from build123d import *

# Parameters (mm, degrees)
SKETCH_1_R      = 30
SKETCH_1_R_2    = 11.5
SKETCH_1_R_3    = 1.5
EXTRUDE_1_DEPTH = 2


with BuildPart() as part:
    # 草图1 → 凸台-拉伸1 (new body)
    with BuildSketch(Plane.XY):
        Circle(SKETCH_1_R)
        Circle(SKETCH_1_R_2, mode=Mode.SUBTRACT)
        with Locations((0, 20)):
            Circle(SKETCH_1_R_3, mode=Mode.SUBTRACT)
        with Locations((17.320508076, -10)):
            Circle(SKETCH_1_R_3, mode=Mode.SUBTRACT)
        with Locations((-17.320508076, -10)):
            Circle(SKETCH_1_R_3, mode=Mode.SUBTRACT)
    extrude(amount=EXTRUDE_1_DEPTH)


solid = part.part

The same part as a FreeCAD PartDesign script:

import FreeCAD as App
import Part
import Sketcher

doc = App.newDocument("Part")
body = doc.addObject("PartDesign::Body", "Body")

# Sketch on XY plane
sketch1 = doc.addObject("Sketcher::SketchObject", "Sketch")
body.addObject(sketch1)
sketch1.AttachmentSupport = (doc.XY_Plane, [""])
sketch1.MapMode = "FlatFace"
sketch1.addGeometry([
    Part.Circle(App.Vector(0, 0, 0), App.Vector(0, 0, 1), 30),  # 0
    Part.Circle(App.Vector(-17.320508, -10, 0), App.Vector(0, 0, 1), 1.5),  # 1
    Part.Circle(App.Vector(17.320508, -10, 0), App.Vector(0, 0, 1), 1.5),  # 2
    Part.Circle(App.Vector(0, 0, 0), App.Vector(0, 0, 1), 11.5),  # 3
    Part.Circle(App.Vector(0, 20, 0), App.Vector(0, 0, 1), 1.5),  # 4
], False)
sketch1.addConstraint([
    Sketcher.Constraint("Coincident", 0, 3, -1, 1),
    Sketcher.Constraint("Coincident", 3, 3, -1, 1),
    Sketcher.Constraint("Equal", 1, 2),
    Sketcher.Constraint("Equal", 2, 4),
    Sketcher.Constraint("Symmetric", 1, 3, 2, 3, -2),
    Sketcher.Constraint("PointOnObject", 4, 3, -2),
    Sketcher.Constraint("Diameter", 0, 60.0),
    Sketcher.Constraint("Diameter", 1, 3.0),
    Sketcher.Constraint("Diameter", 3, 23.0),
    Sketcher.Constraint("DistanceY", 1, 3, -1, 1, 10.0),
    Sketcher.Constraint("DistanceY", -1, 1, 4, 3, 20.0),
    Sketcher.Constraint("DistanceX", 1, 3, -1, 1, 17.320508),
])
pad1 = doc.addObject("PartDesign::Pad", "Pad")
body.addObject(pad1)
pad1.Profile = sketch1
pad1.Length = 2

doc.recompute()
